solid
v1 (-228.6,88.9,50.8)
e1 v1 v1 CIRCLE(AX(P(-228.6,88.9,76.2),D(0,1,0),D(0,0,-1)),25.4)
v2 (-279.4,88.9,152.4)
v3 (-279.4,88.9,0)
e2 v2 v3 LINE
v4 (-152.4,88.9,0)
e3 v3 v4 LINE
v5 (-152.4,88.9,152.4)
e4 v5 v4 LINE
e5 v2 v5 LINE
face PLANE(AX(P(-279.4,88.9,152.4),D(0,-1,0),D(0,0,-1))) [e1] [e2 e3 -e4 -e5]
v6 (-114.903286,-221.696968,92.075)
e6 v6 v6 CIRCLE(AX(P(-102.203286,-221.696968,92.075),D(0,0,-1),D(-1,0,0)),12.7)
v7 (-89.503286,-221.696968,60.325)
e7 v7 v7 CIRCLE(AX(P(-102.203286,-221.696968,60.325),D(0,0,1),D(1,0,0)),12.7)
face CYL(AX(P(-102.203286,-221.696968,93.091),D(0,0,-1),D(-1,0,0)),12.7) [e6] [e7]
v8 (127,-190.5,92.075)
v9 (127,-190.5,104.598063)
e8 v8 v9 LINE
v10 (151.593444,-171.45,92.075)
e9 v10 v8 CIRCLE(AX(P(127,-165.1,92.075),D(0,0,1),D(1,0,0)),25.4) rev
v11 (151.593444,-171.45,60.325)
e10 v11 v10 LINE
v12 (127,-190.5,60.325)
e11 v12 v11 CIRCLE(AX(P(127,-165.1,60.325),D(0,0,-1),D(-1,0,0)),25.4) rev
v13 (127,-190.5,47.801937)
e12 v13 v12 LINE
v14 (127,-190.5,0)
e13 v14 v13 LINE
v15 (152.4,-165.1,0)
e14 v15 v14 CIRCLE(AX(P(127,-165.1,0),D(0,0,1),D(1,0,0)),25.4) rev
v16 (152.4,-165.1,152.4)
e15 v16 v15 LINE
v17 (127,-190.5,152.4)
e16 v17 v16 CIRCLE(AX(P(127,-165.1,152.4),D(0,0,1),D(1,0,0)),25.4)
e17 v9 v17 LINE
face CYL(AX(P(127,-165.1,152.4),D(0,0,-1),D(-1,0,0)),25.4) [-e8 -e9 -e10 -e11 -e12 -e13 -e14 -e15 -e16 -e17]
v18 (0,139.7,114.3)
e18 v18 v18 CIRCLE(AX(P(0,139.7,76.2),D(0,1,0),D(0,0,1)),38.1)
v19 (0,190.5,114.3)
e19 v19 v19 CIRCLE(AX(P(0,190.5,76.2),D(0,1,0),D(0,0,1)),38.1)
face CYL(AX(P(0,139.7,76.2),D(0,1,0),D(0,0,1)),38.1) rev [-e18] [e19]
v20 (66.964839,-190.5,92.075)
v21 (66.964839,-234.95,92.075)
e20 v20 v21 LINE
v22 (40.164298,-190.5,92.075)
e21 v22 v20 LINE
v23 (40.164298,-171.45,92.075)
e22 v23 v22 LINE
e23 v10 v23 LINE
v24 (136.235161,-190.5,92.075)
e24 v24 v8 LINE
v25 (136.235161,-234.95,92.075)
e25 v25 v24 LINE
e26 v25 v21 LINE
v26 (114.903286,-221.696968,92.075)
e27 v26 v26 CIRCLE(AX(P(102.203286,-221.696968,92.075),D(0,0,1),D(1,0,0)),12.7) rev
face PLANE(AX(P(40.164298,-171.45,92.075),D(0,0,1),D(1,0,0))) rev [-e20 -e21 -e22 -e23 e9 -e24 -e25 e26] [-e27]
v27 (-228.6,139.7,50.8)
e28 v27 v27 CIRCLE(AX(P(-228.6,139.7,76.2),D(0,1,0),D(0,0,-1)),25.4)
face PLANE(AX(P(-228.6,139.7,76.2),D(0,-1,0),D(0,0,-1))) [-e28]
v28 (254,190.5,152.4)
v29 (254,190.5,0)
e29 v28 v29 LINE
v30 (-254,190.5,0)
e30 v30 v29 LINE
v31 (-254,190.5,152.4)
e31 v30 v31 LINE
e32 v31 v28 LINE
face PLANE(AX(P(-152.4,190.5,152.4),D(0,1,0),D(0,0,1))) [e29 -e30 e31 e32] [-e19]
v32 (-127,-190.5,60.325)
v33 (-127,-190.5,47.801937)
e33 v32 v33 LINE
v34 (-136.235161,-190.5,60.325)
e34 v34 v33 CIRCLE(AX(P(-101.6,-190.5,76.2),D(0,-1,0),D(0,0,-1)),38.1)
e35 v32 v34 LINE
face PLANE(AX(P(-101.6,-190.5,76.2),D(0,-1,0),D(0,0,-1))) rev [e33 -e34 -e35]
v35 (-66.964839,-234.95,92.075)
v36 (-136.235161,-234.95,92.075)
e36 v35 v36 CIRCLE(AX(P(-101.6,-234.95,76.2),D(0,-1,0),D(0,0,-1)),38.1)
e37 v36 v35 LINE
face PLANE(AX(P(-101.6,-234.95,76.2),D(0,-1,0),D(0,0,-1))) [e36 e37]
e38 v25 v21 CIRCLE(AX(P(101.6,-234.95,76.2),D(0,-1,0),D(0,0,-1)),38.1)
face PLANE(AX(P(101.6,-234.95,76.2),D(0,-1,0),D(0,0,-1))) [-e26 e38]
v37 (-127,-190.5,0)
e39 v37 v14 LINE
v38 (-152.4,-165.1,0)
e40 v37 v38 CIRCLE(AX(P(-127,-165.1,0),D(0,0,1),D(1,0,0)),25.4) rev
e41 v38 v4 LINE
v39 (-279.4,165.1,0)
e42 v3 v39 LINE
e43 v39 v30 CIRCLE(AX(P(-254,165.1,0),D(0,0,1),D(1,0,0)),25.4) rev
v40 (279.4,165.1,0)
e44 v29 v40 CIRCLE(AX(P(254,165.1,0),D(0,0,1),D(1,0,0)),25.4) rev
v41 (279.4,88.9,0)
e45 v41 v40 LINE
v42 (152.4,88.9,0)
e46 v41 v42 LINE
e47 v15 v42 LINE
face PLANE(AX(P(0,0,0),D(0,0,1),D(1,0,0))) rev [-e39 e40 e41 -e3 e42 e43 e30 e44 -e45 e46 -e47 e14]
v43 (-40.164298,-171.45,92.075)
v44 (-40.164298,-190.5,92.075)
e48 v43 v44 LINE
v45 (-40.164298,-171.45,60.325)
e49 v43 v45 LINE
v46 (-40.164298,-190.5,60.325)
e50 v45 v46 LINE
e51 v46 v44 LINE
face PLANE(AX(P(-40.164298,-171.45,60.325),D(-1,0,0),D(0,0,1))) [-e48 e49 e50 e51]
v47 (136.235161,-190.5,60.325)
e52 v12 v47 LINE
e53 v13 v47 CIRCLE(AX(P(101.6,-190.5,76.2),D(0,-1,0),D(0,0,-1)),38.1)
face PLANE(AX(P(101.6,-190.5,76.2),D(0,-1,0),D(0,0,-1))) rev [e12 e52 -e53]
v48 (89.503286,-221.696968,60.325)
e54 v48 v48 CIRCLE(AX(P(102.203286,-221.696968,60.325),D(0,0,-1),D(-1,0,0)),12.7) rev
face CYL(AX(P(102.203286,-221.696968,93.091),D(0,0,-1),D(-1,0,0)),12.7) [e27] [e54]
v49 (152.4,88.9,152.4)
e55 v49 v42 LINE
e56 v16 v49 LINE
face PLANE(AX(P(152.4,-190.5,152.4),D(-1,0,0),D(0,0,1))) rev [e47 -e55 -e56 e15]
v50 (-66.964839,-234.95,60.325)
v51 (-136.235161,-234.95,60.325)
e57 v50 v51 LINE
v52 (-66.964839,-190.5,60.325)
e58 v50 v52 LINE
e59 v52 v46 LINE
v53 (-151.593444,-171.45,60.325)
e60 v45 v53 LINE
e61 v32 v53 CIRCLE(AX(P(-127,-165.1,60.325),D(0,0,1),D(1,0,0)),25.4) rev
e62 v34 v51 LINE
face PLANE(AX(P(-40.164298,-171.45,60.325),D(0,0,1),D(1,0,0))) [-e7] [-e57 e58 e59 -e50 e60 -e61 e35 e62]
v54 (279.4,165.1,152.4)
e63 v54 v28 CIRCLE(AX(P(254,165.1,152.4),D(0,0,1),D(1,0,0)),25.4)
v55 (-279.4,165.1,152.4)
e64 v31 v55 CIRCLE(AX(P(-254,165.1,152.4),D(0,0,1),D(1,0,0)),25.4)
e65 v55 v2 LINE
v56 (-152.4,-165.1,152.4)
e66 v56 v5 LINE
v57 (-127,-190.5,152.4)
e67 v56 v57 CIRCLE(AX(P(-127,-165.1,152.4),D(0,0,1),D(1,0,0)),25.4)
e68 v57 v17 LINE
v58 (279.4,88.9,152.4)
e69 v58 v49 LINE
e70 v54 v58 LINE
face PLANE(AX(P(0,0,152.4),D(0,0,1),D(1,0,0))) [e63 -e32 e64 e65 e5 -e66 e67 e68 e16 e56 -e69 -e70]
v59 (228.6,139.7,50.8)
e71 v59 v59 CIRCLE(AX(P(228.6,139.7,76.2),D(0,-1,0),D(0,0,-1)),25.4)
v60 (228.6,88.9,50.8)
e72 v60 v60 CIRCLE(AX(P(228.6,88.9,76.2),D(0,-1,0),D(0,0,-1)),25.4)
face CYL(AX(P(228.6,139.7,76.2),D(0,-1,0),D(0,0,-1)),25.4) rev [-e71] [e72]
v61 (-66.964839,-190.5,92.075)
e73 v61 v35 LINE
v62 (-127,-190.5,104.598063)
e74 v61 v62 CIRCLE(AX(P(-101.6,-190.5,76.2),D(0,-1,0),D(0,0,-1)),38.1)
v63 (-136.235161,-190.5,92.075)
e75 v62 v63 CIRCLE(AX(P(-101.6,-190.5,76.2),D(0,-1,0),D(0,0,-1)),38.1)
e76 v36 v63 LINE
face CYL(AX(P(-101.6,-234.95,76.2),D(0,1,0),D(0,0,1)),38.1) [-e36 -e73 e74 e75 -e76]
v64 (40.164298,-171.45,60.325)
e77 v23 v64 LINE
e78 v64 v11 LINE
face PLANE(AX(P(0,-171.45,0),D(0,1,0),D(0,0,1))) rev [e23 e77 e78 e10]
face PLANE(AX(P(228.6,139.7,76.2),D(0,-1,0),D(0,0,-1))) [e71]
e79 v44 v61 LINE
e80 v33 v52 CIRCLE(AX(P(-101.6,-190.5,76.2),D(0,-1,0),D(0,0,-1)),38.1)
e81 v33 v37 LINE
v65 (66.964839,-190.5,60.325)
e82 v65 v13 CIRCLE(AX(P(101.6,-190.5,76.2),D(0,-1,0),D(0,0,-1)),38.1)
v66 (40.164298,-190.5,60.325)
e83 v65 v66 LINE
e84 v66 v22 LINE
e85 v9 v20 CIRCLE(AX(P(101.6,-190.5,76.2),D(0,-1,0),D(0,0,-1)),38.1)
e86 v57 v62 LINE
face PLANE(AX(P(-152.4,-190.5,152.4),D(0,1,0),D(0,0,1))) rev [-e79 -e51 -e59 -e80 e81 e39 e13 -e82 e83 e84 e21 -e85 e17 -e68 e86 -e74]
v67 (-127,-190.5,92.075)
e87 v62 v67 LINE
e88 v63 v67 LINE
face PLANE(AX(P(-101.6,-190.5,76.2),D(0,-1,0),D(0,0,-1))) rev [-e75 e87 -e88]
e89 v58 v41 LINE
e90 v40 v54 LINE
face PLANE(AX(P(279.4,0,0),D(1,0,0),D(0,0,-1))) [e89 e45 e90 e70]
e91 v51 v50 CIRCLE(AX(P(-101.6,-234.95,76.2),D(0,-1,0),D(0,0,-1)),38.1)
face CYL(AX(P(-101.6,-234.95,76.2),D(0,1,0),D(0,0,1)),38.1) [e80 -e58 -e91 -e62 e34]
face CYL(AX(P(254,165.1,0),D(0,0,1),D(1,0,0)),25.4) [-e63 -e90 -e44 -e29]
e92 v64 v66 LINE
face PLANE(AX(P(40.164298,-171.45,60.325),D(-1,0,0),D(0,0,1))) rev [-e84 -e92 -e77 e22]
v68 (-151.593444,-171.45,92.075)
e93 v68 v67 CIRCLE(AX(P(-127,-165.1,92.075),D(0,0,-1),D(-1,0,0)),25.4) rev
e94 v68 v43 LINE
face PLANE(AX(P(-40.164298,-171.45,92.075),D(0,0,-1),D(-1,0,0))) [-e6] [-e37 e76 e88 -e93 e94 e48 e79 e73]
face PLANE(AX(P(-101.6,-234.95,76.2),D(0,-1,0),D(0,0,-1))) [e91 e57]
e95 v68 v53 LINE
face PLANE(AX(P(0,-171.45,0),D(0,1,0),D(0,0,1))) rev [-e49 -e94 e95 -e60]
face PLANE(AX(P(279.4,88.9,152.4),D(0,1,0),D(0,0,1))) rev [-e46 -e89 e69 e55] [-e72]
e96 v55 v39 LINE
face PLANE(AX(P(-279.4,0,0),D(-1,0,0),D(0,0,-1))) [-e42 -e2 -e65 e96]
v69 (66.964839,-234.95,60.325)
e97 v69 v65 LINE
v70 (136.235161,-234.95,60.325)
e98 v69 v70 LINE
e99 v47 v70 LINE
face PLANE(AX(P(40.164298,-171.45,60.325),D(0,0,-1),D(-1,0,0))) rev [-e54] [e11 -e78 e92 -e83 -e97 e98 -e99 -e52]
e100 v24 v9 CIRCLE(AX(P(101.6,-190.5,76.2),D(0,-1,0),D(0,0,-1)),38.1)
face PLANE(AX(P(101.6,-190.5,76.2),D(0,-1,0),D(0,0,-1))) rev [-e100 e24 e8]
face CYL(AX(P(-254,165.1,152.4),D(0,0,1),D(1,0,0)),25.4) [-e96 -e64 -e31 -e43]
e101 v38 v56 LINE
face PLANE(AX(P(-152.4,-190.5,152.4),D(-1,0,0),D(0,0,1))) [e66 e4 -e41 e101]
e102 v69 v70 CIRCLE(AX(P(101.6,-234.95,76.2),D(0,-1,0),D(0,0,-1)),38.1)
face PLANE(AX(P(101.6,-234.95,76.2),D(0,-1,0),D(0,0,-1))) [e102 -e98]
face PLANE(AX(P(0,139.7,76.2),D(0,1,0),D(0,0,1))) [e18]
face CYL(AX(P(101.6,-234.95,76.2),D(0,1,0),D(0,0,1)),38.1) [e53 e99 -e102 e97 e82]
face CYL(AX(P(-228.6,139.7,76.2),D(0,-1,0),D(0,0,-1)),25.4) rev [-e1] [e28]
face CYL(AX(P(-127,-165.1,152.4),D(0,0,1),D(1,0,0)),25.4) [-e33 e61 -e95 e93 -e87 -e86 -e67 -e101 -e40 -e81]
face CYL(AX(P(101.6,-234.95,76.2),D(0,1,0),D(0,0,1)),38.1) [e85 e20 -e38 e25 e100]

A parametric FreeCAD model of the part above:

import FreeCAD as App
import Part
import Sketcher
from FreeCAD import Vector
Q = App.Units.Quantity


def edges_at(feature, points):
    """Names of the edges that pass closest to the given points."""
    edges = feature.Shape.Edges
    near = lambda p: min(range(len(edges)), key=lambda i: edges[i].distToShape(Part.Vertex(*p))[0])
    return sorted({f"Edge{near(p) + 1}" for p in points})


def add_polygon(sketch, points):
    """Adds a closed chain of lines whose ends are joined by coincident constraints."""
    first, n = sketch.GeometryCount, len(points)
    for a, b in zip(points, points[1:] + points[:1]):
        sketch.addGeometry(Part.LineSegment(App.Vector(*a, 0), App.Vector(*b, 0)), False)
    for i in range(n):
        sketch.addConstraint(Sketcher.Constraint("Coincident", first + i, 2, first + (i + 1) % n, 1))

doc = App.newDocument("Part")
body = doc.addObject("PartDesign::Body", "Body")

# Sketch on XY plane
sketch1 = body.newObject("Sketcher::SketchObject", "Sketch")
sketch1.AttachmentSupport = (doc.getObject("XY_Plane"), [""])
sketch1.MapMode = "FlatFace"
add_polygon(sketch1, [(-152, 190), (-152, -190), (152, -190), (152, 190)])  # lines 0-3
sketch1.addConstraint(Sketcher.Constraint("Vertical", 0))
sketch1.addConstraint(Sketcher.Constraint("Horizontal", 1))
sketch1.addConstraint(Sketcher.Constraint("Vertical", 2))
sketch1.addConstraint(Sketcher.Constraint("Horizontal", 3))
sketch1.addConstraint(Sketcher.Constraint("Symmetric", 0, 2, 2, 2, -1, 1))
sketch1.addConstraint(Sketcher.Constraint("DistanceX", 1, 1, 1, 2, Q("12 in")))
sketch1.addConstraint(Sketcher.Constraint("DistanceY", 0, 2, 0, 1, Q("15 in")))
pad1 = body.newObject("PartDesign::Pad", "Pad")
pad1.Profile = sketch1
pad1.Length = Q("6 in")

# Sketch on XZ plane
sketch2 = body.newObject("Sketcher::SketchObject", "Sketch001")
sketch2.AttachmentSupport = (doc.getObject("XZ_Plane"), [""])
sketch2.MapMode = "FlatFace"
sketch2.AttachmentOffset = App.Placement(Vector(0, 0, -7.5 * 25.4), App.Rotation())
sketch2.addGeometry(Part.Circle(Vector(0, 76, 0), Vector(0, 0, 1), 38), False)
sketch2.addConstraint(Sketcher.Constraint("PointOnObject", 0, 3, -2))
sketch2.addConstraint(Sketcher.Constraint("Diameter", 0, Q("3 in")))
sketch2.addConstraint(Sketcher.Constraint("DistanceY", -1, 1, 0, 3, Q("3 in")))
pocket1 = body.newObject("PartDesign::Pocket", "Pocket")
pocket1.Profile = sketch2
pocket1.Length = Q("2 in")
pocket1.Reversed = True

# Sketch on YZ plane
sketch3 = body.newObject("Sketcher::SketchObject", "Sketch002")
sketch3.AttachmentSupport = (doc.getObject("YZ_Plane"), [""])
sketch3.MapMode = "FlatFace"
sketch3.AttachmentOffset = App.Placement(Vector(0, 0, 6 * 25.4), App.Rotation())
add_polygon(sketch3, [(190, 152), (89, 152), (89, 0), (190, 0)])  # lines 0-3
sketch3.addConstraint(Sketcher.Constraint("Horizontal", 0))
sketch3.addConstraint(Sketcher.Constraint("Vertical", 1))
sketch3.addConstraint(Sketcher.Constraint("Horizontal", 2))
sketch3.addConstraint(Sketcher.Constraint("Vertical", 3))
sketch3.addConstraint(Sketcher.Constraint("PointOnObject", 1, 2, -1))
sketch3.addConstraint(Sketcher.Constraint("DistanceX", 0, 2, 0, 1, Q("4 in")))
sketch3.addConstraint(Sketcher.Constraint("DistanceY", 1, 2, 1, 1, Q("6 in")))
sketch3.addConstraint(Sketcher.Constraint("DistanceX", -1, 1, 0, 2, Q("3.5 in")))
pad2 = body.newObject("PartDesign::Pad", "Pad001")
pad2.Profile = sketch3
pad2.Length = Q("5 in")
doc.recompute()

mirrored = body.newObject("PartDesign::Mirrored", "Mirrored")
mirrored.Originals = [pad2]
mirrored.MirrorPlane = (doc.getObject("YZ_Plane"), [""])
body.Tip = mirrored

# Sketch on XZ plane
sketch4 = body.newObject("Sketcher::SketchObject", "Sketch003")
sketch4.AttachmentSupport = (doc.getObject("XZ_Plane"), [""])
sketch4.MapMode = "FlatFace"
sketch4.AttachmentOffset = App.Placement(Vector(0, 0, -3.5 * 25.4), App.Rotation())
sketch4.addGeometry(Part.Circle(Vector(229, 76, 0), Vector(0, 0, 1), 25), False)
sketch4.addConstraint(Sketcher.Constraint("Diameter", 0, Q("2 in")))
sketch4.addConstraint(Sketcher.Constraint("DistanceX", -1, 1, 0, 3, Q("9 in")))
sketch4.addConstraint(Sketcher.Constraint("DistanceY", -1, 1, 0, 3, Q("3 in")))
pocket2 = body.newObject("PartDesign::Pocket", "Pocket001")
pocket2.Profile = sketch4
pocket2.Length = Q("2 in")
doc.recompute()

fillet = body.newObject("PartDesign::Fillet", "Fillet")
fillet.Base = (pocket2, edges_at(pocket2, [(279.4, 190.5, 76.2), (-279.4, 190.5, 76.2)]))
fillet.Radius = Q("1 in")
doc.recompute()

fillet2 = body.newObject("PartDesign::Fillet", "Fillet001")
fillet2.Base = (fillet, edges_at(fillet, [(-152.4, -190.5, 76.2), (152.4, -190.5, 76.2)]))
fillet2.Radius = Q("1 in")
doc.recompute()

mirrored2 = body.newObject("PartDesign::Mirrored", "Mirrored001")
mirrored2.Originals = [pocket2]
mirrored2.MirrorPlane = (doc.getObject("YZ_Plane"), [""])
body.Tip = mirrored2

# Sketch on XZ plane
sketch5 = body.newObject("Sketcher::SketchObject", "Sketch004")
sketch5.AttachmentSupport = (doc.getObject("XZ_Plane"), [""])
sketch5.MapMode = "FlatFace"
sketch5.AttachmentOffset = App.Placement(Vector(0, 0, 7.5 * 25.4), App.Rotation())
sketch5.addGeometry(Part.Circle(Vector(-102, 76, 0), Vector(0, 0, 1), 38), False)
sketch5.addGeometry(Part.Circle(Vector(102, 76, 0), Vector(0, 0, 1), 38), False)
sketch5.addConstraint(Sketcher.Constraint("Equal", 0, 1))
sketch5.addConstraint(Sketcher.Constraint("Symmetric", 0, 3, 1, 3, -2))
sketch5.addConstraint(Sketcher.Constraint("Diameter", 0, Q("3 in")))
sketch5.addConstraint(Sketcher.Constraint("DistanceX", 0, 3, -1, 1, Q("4 in")))
sketch5.addConstraint(Sketcher.Constraint("DistanceY", -1, 1, 0, 3, Q("3 in")))
pad3 = body.newObject("PartDesign::Pad", "Pad002")
pad3.Profile = sketch5
pad3.Length = Q("1.75 in")

# Sketch on XZ plane
sketch6 = body.newObject("Sketcher::SketchObject", "Sketch005")
sketch6.AttachmentSupport = (doc.getObject("XZ_Plane"), [""])
sketch6.MapMode = "FlatFace"
sketch6.AttachmentOffset = App.Placement(Vector(0, 0, 9.25 * 25.4), App.Rotation())
add_polygon(sketch6, [(40, 92), (40, 60), (163, 60), (163, 92)])  # lines 0-3
sketch6.addConstraint(Sketcher.Constraint("Vertical", 0))
sketch6.addConstraint(Sketcher.Constraint("Horizontal", 1))
sketch6.addConstraint(Sketcher.Constraint("Vertical", 2))
sketch6.addConstraint(Sketcher.Constraint("Horizontal", 3))
sketch6.addConstraint(Sketcher.Constraint("DistanceY", 0, 2, 0, 1, Q("1.25 in")))
sketch6.addConstraint(Sketcher.Constraint("DistanceY", -1, 1, 0, 2, Q("2.375 in")))
sketch6.addConstraint(Sketcher.Constraint("DistanceX", -1, 1, 0, 2, 40.164298))
sketch6.addConstraint(Sketcher.Constraint("DistanceX", -1, 1, 1, 2, 163.035702))
pocket3 = body.newObject("PartDesign::Pocket", "Pocket002")
pocket3.Profile = sketch6
pocket3.Length = Q("2.5 in")
doc.recompute()

mirrored3 = body.newObject("PartDesign::Mirrored", "Mirrored002")
mirrored3.Originals = [pocket3]
mirrored3.MirrorPlane = (doc.getObject("YZ_Plane"), [""])
body.Tip = mirrored3

# Sketch on XY plane
sketch7 = body.newObject("Sketcher::SketchObject", "Sketch006")
sketch7.AttachmentSupport = (doc.getObject("XY_Plane"), [""])
sketch7.MapMode = "FlatFace"
sketch7.AttachmentOffset = App.Placement(Vector(0, 0, 2.375 * 25.4), App.Rotation())
sketch7.addGeometry(Part.Circle(Vector(102, -222, 0), Vector(0, 0, 1), 13), False)
sketch7.addConstraint(Sketcher.Constraint("Diameter", 0, Q("1 in")))
sketch7.addConstraint(Sketcher.Constraint("DistanceY", 0, 3, -1, 1, 221.696968))
sketch7.addConstraint(Sketcher.Constraint("DistanceX", -1, 1, 0, 3, 102.203286))
pad4 = body.newObject("PartDesign::Pad", "Pad003")
pad4.Profile = sketch7
pad4.Length = Q("1.29 in")
doc.recompute()

mirrored4 = body.newObject("PartDesign::Mirrored", "Mirrored003")
mirrored4.Originals = [pad4]
mirrored4.MirrorPlane = (doc.getObject("YZ_Plane"), [""])
body.Tip = mirrored4

doc.recompute()
